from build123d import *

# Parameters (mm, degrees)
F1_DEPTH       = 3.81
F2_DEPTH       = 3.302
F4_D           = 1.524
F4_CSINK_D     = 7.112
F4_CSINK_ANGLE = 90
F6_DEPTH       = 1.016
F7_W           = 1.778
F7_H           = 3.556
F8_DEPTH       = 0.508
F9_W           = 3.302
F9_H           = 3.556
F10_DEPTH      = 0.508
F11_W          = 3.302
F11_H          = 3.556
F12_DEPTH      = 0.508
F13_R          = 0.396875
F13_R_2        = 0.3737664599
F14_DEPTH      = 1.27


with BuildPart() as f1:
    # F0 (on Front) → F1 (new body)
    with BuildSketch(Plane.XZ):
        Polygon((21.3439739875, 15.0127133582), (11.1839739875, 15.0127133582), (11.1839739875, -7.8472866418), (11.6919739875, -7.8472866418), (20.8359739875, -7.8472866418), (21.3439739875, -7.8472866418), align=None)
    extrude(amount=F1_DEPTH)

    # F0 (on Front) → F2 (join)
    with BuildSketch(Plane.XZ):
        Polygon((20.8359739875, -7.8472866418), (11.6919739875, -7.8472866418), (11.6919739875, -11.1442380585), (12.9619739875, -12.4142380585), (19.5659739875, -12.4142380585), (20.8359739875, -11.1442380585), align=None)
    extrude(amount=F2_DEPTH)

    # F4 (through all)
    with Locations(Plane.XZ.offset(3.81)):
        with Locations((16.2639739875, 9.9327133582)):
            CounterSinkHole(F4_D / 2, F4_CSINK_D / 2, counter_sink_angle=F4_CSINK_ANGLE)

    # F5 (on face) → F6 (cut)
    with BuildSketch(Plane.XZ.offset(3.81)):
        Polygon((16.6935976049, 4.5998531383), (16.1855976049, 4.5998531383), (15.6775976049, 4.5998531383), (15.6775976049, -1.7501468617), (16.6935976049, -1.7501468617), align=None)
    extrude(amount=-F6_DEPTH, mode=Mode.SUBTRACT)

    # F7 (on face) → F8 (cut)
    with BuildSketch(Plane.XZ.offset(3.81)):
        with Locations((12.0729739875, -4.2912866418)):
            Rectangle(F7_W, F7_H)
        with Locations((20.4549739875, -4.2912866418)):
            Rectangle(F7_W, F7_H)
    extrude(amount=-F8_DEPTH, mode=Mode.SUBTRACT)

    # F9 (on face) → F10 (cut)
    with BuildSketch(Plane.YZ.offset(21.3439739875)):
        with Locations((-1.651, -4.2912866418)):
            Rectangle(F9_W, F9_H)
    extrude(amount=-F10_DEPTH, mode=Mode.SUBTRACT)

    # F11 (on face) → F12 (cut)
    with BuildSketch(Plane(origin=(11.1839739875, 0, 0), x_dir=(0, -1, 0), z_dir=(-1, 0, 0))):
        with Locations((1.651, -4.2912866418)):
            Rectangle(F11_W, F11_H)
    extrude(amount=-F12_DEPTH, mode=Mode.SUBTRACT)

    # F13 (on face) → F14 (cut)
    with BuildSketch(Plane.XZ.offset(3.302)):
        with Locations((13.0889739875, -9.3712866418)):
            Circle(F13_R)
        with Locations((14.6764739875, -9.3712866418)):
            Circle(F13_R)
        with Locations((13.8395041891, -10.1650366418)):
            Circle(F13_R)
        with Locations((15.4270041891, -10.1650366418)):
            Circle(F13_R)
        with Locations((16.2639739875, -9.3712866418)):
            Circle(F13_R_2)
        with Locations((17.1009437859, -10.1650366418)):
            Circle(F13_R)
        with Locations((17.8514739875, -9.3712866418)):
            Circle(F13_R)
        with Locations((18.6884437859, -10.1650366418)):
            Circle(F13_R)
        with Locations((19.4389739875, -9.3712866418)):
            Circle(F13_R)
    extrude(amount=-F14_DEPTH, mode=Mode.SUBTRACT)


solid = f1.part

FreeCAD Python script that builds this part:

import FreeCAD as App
import Part
import Sketcher
from FreeCAD import Vector
Q = App.Units.Quantity

doc = App.newDocument("Part")
body = doc.addObject("PartDesign::Body", "Body")

# Sketch on XZ plane
sketch1 = body.newObject("Sketcher::SketchObject", "Sketch")
sketch1.AttachmentSupport = (doc.getObject("XZ_Plane"), [""])
sketch1.MapMode = "FlatFace"
sketch1.addGeometry([
    Part.LineSegment(Vector(21, 15, 0), Vector(11, 15, 0)),
    Part.LineSegment(Vector(11, 15, 0), Vector(11, -8, 0)),
    Part.LineSegment(Vector(11, -8, 0), Vector(21, -8, 0)),
    Part.LineSegment(Vector(21, -8, 0), Vector(21, 15, 0)),
], False)
sketch1.addConstraint([
    Sketcher.Constraint("Coincident", 0, 2, 1, 1),
    Sketcher.Constraint("Coincident", 1, 2, 2, 1),
    Sketcher.Constraint("Coincident", 2, 2, 3, 1),
    Sketcher.Constraint("Coincident", 3, 2, 0, 1),
    Sketcher.Constraint("Horizontal", 0),
    Sketcher.Constraint("Vertical", 1),
    Sketcher.Constraint("Horizontal", 2),
    Sketcher.Constraint("Vertical", 3),
    Sketcher.Constraint("DistanceX", 0, 2, 0, 1, Q("0.4 in")),
    Sketcher.Constraint("DistanceY", 1, 2, 1, 1, Q("0.9 in")),
    Sketcher.Constraint("DistanceX", -1, 1, 0, 2, 11.183974),
    Sketcher.Constraint("DistanceY", -1, 1, 0, 2, 15.012713),
])
pad1 = body.newObject("PartDesign::Pad", "Pad")
pad1.Profile = sketch1
pad1.Length = Q("0.15 in")

# Sketch on XZ plane
sketch2 = body.newObject("Sketcher::SketchObject", "Sketch001")
sketch2.AttachmentSupport = (doc.getObject("XZ_Plane"), [""])
sketch2.MapMode = "FlatFace"
sketch2.addGeometry([
    Part.LineSegment(Vector(20.8, -7.8, 0), Vector(11.7, -7.8, 0)),  # 0
    Part.LineSegment(Vector(11.7, -7.8, 0), Vector(11.7, -11.1, 0)),  # 1
    Part.LineSegment(Vector(11.7, -11.1, 0), Vector(13, -12.4, 0)),  # 2
    Part.LineSegment(Vector(13, -12.4, 0), Vector(19.6, -12.4, 0)),  # 3
    Part.LineSegment(Vector(19.6, -12.4, 0), Vector(20.8, -11.1, 0)),  # 4
    Part.LineSegment(Vector(20.8, -11.1, 0), Vector(20.8, -7.8, 0)),  # 5
], False)
sketch2.addConstraint([
    Sketcher.Constraint("Coincident", 0, 2, 1, 1),
    Sketcher.Constraint("Coincident", 1, 2, 2, 1),
    Sketcher.Constraint("Coincident", 2, 2, 3, 1),
    Sketcher.Constraint("Coincident", 3, 2, 4, 1),
    Sketcher.Constraint("Coincident", 4, 2, 5, 1),
    Sketcher.Constraint("Coincident", 5, 2, 0, 1),
    Sketcher.Constraint("Horizontal", 0),
    Sketcher.Constraint("Vertical", 1),
    Sketcher.Constraint("Horizontal", 3),
    Sketcher.Constraint("Vertical", 5),
    Sketcher.Constraint("Perpendicular", 2, 4),
    Sketcher.Constraint("Horizontal", 1, 2, 4, 2),
    Sketcher.Constraint("Equal", 2, 4),
    Sketcher.Constraint("DistanceX", 0, 2, 0, 1, Q("0.36 in")),
    Sketcher.Constraint("DistanceX", 3, 1, 3, 2, Q("0.26 in")),
    Sketcher.Constraint("DistanceY", 1, 2, 1, 1, 3.296951),
    Sketcher.Constraint("DistanceY", 1, 2, -1, 1, 11.144238),
    Sketcher.Constraint("DistanceX", -1, 1, 0, 2, 11.691974),
])
pad2 = body.newObject("PartDesign::Pad", "Pad001")
pad2.Profile = sketch2
pad2.Length = Q("0.13 in")

# Sketch on XZ plane
sketch3 = body.newObject("Sketcher::SketchObject", "Sketch002")
sketch3.AttachmentSupport = (doc.getObject("XZ_Plane"), [""])
sketch3.MapMode = "FlatFace"
sketch3.AttachmentOffset = App.Placement(Vector(0, 0, 0.15 * 25.4), App.Rotation())
sketch3.addGeometry(Part.Circle(Vector(16.3, 9.9, 0), Vector(0, 0, 1), 0.8), False)
sketch3.addConstraint([
    Sketcher.Constraint("Diameter", 0, Q("0.06 in")),
    Sketcher.Constraint("DistanceX", -1, 1, 0, 3, 16.263974),
    Sketcher.Constraint("DistanceY", -1, 1, 0, 3, 9.932713),
])
doc.recompute()
hole = body.newObject("PartDesign::Hole", "Hole")
hole.Profile = sketch3
hole.ThreadType = "None"
hole.Diameter = Q("0.06 in")
hole.DepthType = "ThroughAll"
hole.HoleCutType = "Countersink"
hole.HoleCutDiameter = Q("0.28 in")
hole.HoleCutCountersinkAngle = 90

# Sketch on XZ plane
sketch4 = body.newObject("Sketcher::SketchObject", "Sketch003")
sketch4.AttachmentSupport = (doc.getObject("XZ_Plane"), [""])
sketch4.MapMode = "FlatFace"
sketch4.AttachmentOffset = App.Placement(Vector(0, 0, 0.15 * 25.4), App.Rotation())
sketch4.addGeometry([
    Part.LineSegment(Vector(16.7, 4.6, 0), Vector(15.7, 4.6, 0)),
    Part.LineSegment(Vector(15.7, 4.6, 0), Vector(15.7, -1.8, 0)),
    Part.LineSegment(Vector(15.7, -1.8, 0), Vector(16.7, -1.8, 0)),
    Part.LineSegment(Vector(16.7, -1.8, 0), Vector(16.7, 4.6, 0)),
], False)
sketch4.addConstraint([
    Sketcher.Constraint("Coincident", 0, 2, 1, 1),
    Sketcher.Constraint("Coincident", 1, 2, 2, 1),
    Sketcher.Constraint("Coincident", 2, 2, 3, 1),
    Sketcher.Constraint("Coincident", 3, 2, 0, 1),
    Sketcher.Constraint("Horizontal", 0),
    Sketcher.Constraint("Vertical", 1),
    Sketcher.Constraint("Horizontal", 2),
    Sketcher.Constraint("Vertical", 3),
    Sketcher.Constraint("DistanceX", 0, 2, 0, 1, Q("0.04 in")),
    Sketcher.Constraint("DistanceY", 1, 2, 1, 1, Q("0.25 in")),
    Sketcher.Constraint("DistanceX", -1, 1, 0, 2, 15.677598),
    Sketcher.Constraint("DistanceY", -1, 1, 0, 2, 4.599853),
])
pocket1 = body.newObject("PartDesign::Pocket", "Pocket")
pocket1.Profile = sketch4
pocket1.Length = Q("0.04 in")

# Sketch on XZ plane
sketch5 = body.newObject("Sketcher::SketchObject", "Sketch004")
sketch5.AttachmentSupport = (doc.getObject("XZ_Plane"), [""])
sketch5.MapMode = "FlatFace"
sketch5.AttachmentOffset = App.Placement(Vector(0, 0, 0.15 * 25.4), App.Rotation())
sketch5.addGeometry([
    Part.LineSegment(Vector(11.2, -2.5, 0), Vector(11.2, -6.1, 0)),  # 0
    Part.LineSegment(Vector(11.2, -6.1, 0), Vector(13, -6.1, 0)),  # 1
    Part.LineSegment(Vector(13, -6.1, 0), Vector(13, -2.5, 0)),  # 2
    Part.LineSegment(Vector(13, -2.5, 0), Vector(11.2, -2.5, 0)),  # 3
    Part.LineSegment(Vector(19.6, -2.5, 0), Vector(19.6, -6.1, 0)),  # 4
    Part.LineSegment(Vector(19.6, -6.1, 0), Vector(21.3, -6.1, 0)),  # 5
    Part.LineSegment(Vector(21.3, -6.1, 0), Vector(21.3, -2.5, 0)),  # 6
    Part.LineSegment(Vector(21.3, -2.5, 0), Vector(19.6, -2.5, 0)),  # 7
], False)
sketch5.addConstraint([
    Sketcher.Constraint("Coincident", 0, 2, 1, 1),
    Sketcher.Constraint("Coincident", 1, 2, 2, 1),
    Sketcher.Constraint("Coincident", 2, 2, 3, 1),
    Sketcher.Constraint("Coincident", 3, 2, 0, 1),
    Sketcher.Constraint("Coincident", 4, 2, 5, 1),
    Sketcher.Constraint("Coincident", 5, 2, 6, 1),
    Sketcher.Constraint("Coincident", 6, 2, 7, 1),
    Sketcher.Constraint("Coincident", 7, 2, 4, 1),
    Sketcher.Constraint("Vertical", 0),
    Sketcher.Constraint("Horizontal", 1),
    Sketcher.Constraint("Vertical", 2),
    Sketcher.Constraint("Horizontal", 3),
    Sketcher.Constraint("Vertical", 4),
    Sketcher.Constraint("Horizontal", 5),
    Sketcher.Constraint("Vertical", 6),
    Sketcher.Constraint("Horizontal", 7),
    Sketcher.Constraint("Horizontal", 1, 2, 4, 2),
    Sketcher.Constraint("Horizontal", 3, 2, 6, 2),
    Sketcher.Constraint("Equal", 3, 5),
    Sketcher.Constraint("DistanceX", 1, 1, 1, 2, Q("0.07 in")),
    Sketcher.Constraint("DistanceY", 0, 2, 0, 1, Q("0.14 in")),
    Sketcher.Constraint("DistanceX", 0, 2, 5, 2, Q("0.4 in")),
    Sketcher.Constraint("DistanceX", -1, 1, 0, 2, 11.183974),
    Sketcher.Constraint("DistanceY", 0, 2, -1, 1, 6.069287),
])
pocket2 = body.newObject("PartDesign::Pocket", "Pocket001")
pocket2.Profile = sketch5
pocket2.Length = Q("0.02 in")

# Sketch on YZ plane
sketch6 = body.newObject("Sketcher::SketchObject", "Sketch005")
sketch6.AttachmentSupport = (doc.getObject("YZ_Plane"), [""])
sketch6.MapMode = "FlatFace"
sketch6.AttachmentOffset = App.Placement(Vector(0, 0, 21.343974), App.Rotation())
sketch6.addGeometry([
    Part.LineSegment(Vector(-3.3, -2.5, 0), Vector(-3.3, -6.1, 0)),
    Part.LineSegment(Vector(-3.3, -6.1, 0), Vector(0, -6.1, 0)),
    Part.LineSegment(Vector(0, -6.1, 0), Vector(0, -2.5, 0)),
    Part.LineSegment(Vector(0, -2.5, 0), Vector(-3.3, -2.5, 0)),
], False)
sketch6.addConstraint([
    Sketcher.Constraint("Coincident", 0, 2, 1, 1),
    Sketcher.Constraint("Coincident", 1, 2, 2, 1),
    Sketcher.Constraint("Coincident", 2, 2, 3, 1),
    Sketcher.Constraint("Coincident", 3, 2, 0, 1),
    Sketcher.Constraint("Vertical", 0),
    Sketcher.Constraint("Horizontal", 1),
    Sketcher.Constraint("Vertical", 2),
    Sketcher.Constraint("Horizontal", 3),
    Sketcher.Constraint("PointOnObject", 1, 2, -2),
    Sketcher.Constraint("DistanceX", 1, 1, 1, 2, Q("0.13 in")),
    Sketcher.Constraint("DistanceY", 0, 2, 0, 1, Q("0.14 in")),
    Sketcher.Constraint("DistanceY", 0, 2, -1, 1, 6.069287),
])
pocket3 = body.newObject("PartDesign::Pocket", "Pocket002")
pocket3.Profile = sketch6
pocket3.Length = Q("0.02 in")

# Sketch on YZ plane
sketch7 = body.newObject("Sketcher::SketchObject", "Sketch006")
sketch7.AttachmentSupport = (doc.getObject("YZ_Plane"), [""])
sketch7.MapMode = "FlatFace"
sketch7.AttachmentOffset = App.Placement(Vector(0, 0, 11.183974), App.Rotation())
sketch7.addGeometry([
    Part.LineSegment(Vector(0, -2.5, 0), Vector(0, -6.1, 0)),
    Part.LineSegment(Vector(0, -6.1, 0), Vector(-3.3, -6.1, 0)),
    Part.LineSegment(Vector(-3.3, -6.1, 0), Vector(-3.3, -2.5, 0)),
    Part.LineSegment(Vector(-3.3, -2.5, 0), Vector(0, -2.5, 0)),
], False)
sketch7.addConstraint([
    Sketcher.Constraint("Coincident", 0, 2, 1, 1),
    Sketcher.Constraint("Coincident", 1, 2, 2, 1),
    Sketcher.Constraint("Coincident", 2, 2, 3, 1),
    Sketcher.Constraint("Coincident", 3, 2, 0, 1),
    Sketcher.Constraint("Vertical", 0),
    Sketcher.Constraint("Horizontal", 1),
    Sketcher.Constraint("Vertical", 2),
    Sketcher.Constraint("Horizontal", 3),
    Sketcher.Constraint("PointOnObject", 0, 2, -2),
    Sketcher.Constraint("DistanceX", 1, 2, 1, 1, Q("0.13 in")),
    Sketcher.Constraint("DistanceY", 0, 2, 0, 1, Q("0.14 in")),
    Sketcher.Constraint("DistanceY", 0, 2, -1, 1, 6.069287),
])
pocket4 = body.newObject("PartDesign::Pocket", "Pocket003")
pocket4.Profile = sketch7
pocket4.Length = Q("0.02 in")
pocket4.Reversed = True

# Sketch on XZ plane
sketch8 = body.newObject("Sketcher::SketchObject", "Sketch007")
sketch8.AttachmentSupport = (doc.getObject("XZ_Plane"), [""])
sketch8.MapMode = "FlatFace"
sketch8.AttachmentOffset = App.Placement(Vector(0, 0, 0.13 * 25.4), App.Rotation())
sketch8.addGeometry([
    Part.Circle(Vector(13.09, -9.37, 0), Vector(0, 0, 1), 0.4),  # 0
    Part.Circle(Vector(14.68, -9.37, 0), Vector(0, 0, 1), 0.4),  # 1
    Part.Circle(Vector(13.84, -10.17, 0), Vector(0, 0, 1), 0.4),  # 2
    Part.Circle(Vector(15.43, -10.17, 0), Vector(0, 0, 1), 0.4),  # 3
    Part.Circle(Vector(16.26, -9.37, 0), Vector(0, 0, 1), 0.37),  # 4
    Part.Circle(Vector(17.1, -10.17, 0), Vector(0, 0, 1), 0.4),  # 5
    Part.Circle(Vector(17.85, -9.37, 0), Vector(0, 0, 1), 0.4),  # 6
    Part.Circle(Vector(18.69, -10.17, 0), Vector(0, 0, 1), 0.4),  # 7
    Part.Circle(Vector(19.44, -9.37, 0), Vector(0, 0, 1), 0.4),  # 8
], False)
sketch8.addConstraint([
    Sketcher.Constraint("Equal", 0, 1),
    Sketcher.Constraint("Equal", 1, 2),
    Sketcher.Constraint("Equal", 2, 3),
    Sketcher.Constraint("Equal", 3, 5),
    Sketcher.Constraint("Equal", 5, 6),
    Sketcher.Constraint("Equal", 6, 7),
    Sketcher.Constraint("Equal", 7, 8),
    Sketcher.Constraint("Horizontal", 0, 3, 1, 3),
    Sketcher.Constraint("Horizontal", 2, 3, 3, 3),
    Sketcher.Constraint("Horizontal", 1, 3, 4, 3),
    Sketcher.Constraint("Horizontal", 3, 3, 5, 3),
    Sketcher.Constraint("Horizontal", 4, 3, 6, 3),
    Sketcher.Constraint("Horizontal", 5, 3, 7, 3),
    Sketcher.Constraint("Horizontal", 6, 3, 8, 3),
    Sketcher.Constraint("Diameter", 0, Q("0.03125 in")),
    Sketcher.Constraint("DistanceX", 0, 3, 1, 3, Q("0.0625 in")),
    Sketcher.Constraint("DistanceY", 2, 3, 0, 3, Q("0.03125 in")),
    Sketcher.Constraint("DistanceX", 2, 3, 3, 3, Q("0.0625 in")),
    Sketcher.Constraint("DistanceX", 1, 3, 4, 3, Q("0.0625 in")),
    Sketcher.Constraint("DistanceX", 4, 3, 6, 3, Q("0.0625 in")),
    Sketcher.Constraint("DistanceX", 5, 3, 7, 3, Q("0.0625 in")),
    Sketcher.Constraint("DistanceX", 6, 3, 8, 3, Q("0.0625 in")),
    Sketcher.Constraint("Diameter", 4, 0.747533),
    Sketcher.Constraint("DistanceX", 0, 3, 2, 3, 0.75053),
    Sketcher.Constraint("DistanceX", 4, 3, 5, 3, 0.83697),
    Sketcher.Constraint("DistanceX", -1, 1, 0, 3, 13.088974),
    Sketcher.Constraint("DistanceY", 0, 3, -1, 1, 9.371287),
])
pocket5 = body.newObject("PartDesign::Pocket", "Pocket004")
pocket5.Profile = sketch8
pocket5.Length = Q("0.05 in")

doc.recompute()
